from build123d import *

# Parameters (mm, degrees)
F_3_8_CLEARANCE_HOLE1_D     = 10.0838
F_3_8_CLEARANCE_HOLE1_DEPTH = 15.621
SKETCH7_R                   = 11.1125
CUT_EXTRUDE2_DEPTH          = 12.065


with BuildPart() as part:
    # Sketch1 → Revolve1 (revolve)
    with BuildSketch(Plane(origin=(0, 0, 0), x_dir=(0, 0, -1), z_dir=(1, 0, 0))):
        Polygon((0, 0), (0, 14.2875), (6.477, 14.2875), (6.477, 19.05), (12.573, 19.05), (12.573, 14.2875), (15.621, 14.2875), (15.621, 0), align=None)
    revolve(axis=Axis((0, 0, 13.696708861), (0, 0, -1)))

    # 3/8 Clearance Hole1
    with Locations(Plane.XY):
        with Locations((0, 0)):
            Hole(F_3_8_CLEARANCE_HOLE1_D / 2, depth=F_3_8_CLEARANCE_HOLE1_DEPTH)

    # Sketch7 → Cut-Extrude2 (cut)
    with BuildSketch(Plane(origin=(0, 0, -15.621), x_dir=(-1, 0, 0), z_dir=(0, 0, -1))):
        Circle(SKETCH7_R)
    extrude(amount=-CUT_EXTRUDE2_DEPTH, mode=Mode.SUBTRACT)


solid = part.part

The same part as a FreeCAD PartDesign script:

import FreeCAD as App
import Part
import Sketcher
from FreeCAD import Vector
Q = App.Units.Quantity


def add_polygon(sketch, points):
    """Adds a closed chain of lines whose ends are joined by coincident constraints."""
    first, n = sketch.GeometryCount, len(points)
    for a, b in zip(points, points[1:] + points[:1]):
        sketch.addGeometry(Part.LineSegment(App.Vector(*a, 0), App.Vector(*b, 0)), False)
    for i in range(n):
        sketch.addConstraint(Sketcher.Constraint("Coincident", first + i, 2, first + (i + 1) % n, 1))

doc = App.newDocument("Part")
body = doc.addObject("PartDesign::Body", "Body")

# Sketch on YZ plane
sketch1 = body.newObject("Sketcher::SketchObject", "Sketch")
sketch1.AttachmentSupport = (doc.getObject("YZ_Plane"), [""])
sketch1.MapMode = "FlatFace"
add_polygon(sketch1, [(14.2875, 0), (0, 0), (0, -15.621), (14.2875, -15.621), (14.2875, -12.573), (19.05, -12.573), (19.05, -6.477), (14.2875, -6.477)])  # lines 0-7
sketch1.addConstraint(Sketcher.Constraint("Horizontal", 0))
sketch1.addConstraint(Sketcher.Constraint("Vertical", 1))
sketch1.addConstraint(Sketcher.Constraint("Horizontal", 2))
sketch1.addConstraint(Sketcher.Constraint("Vertical", 3))
sketch1.addConstraint(Sketcher.Constraint("Horizontal", 4))
sketch1.addConstraint(Sketcher.Constraint("Vertical", 5))
sketch1.addConstraint(Sketcher.Constraint("Horizontal", 6))
sketch1.addConstraint(Sketcher.Constraint("Vertical", 7))
sketch1.addConstraint(Sketcher.Constraint("Coincident", 0, 2, -1, 1))
sketch1.addConstraint(Sketcher.Constraint("Vertical", 3, 2, 6, 2))
sketch1.addConstraint(Sketcher.Constraint("DistanceY", 3, 1, 3, 2, Q("0.12 in")))
sketch1.addConstraint(Sketcher.Constraint("DistanceY", 5, 1, 5, 2, Q("0.24 in")))
sketch1.addConstraint(Sketcher.Constraint("DistanceX", 0, 2, 0, 1, Q("0.5625 in")))
sketch1.addConstraint(Sketcher.Constraint("DistanceX", 4, 1, 4, 2, Q("0.1875 in")))
sketch1.addConstraint(Sketcher.Constraint("DistanceY", 1, 2, 1, 1, Q("0.615 in")))
revolution = body.newObject("PartDesign::Revolution", "Revolution")
revolution.Profile = sketch1
revolution.ReferenceAxis = (sketch1, ["V_Axis"])
revolution.Angle = 360

# Sketch on XY plane
sketch2 = body.newObject("Sketcher::SketchObject", "Sketch001")
sketch2.AttachmentSupport = (doc.getObject("XY_Plane"), [""])
sketch2.MapMode = "FlatFace"
sketch2.addGeometry(Part.Circle(Vector(0, 0, 0), Vector(0, 0, 1), 5.0419), False)
sketch2.addConstraint(Sketcher.Constraint("Coincident", 0, 3, -1, 1))
sketch2.addConstraint(Sketcher.Constraint("Diameter", 0, Q("0.397 in")))
doc.recompute()
hole = body.newObject("PartDesign::Hole", "Hole")
hole.Profile = sketch2
hole.ThreadType = "None"
hole.Diameter = Q("0.397 in")
hole.DepthType = "Dimension"
hole.Depth = Q("0.615 in")
hole.DrillPoint = "Flat"

# Sketch on XY plane
sketch3 = body.newObject("Sketcher::SketchObject", "Sketch002")
sketch3.AttachmentSupport = (doc.getObject("XY_Plane"), [""])
sketch3.MapMode = "FlatFace"
sketch3.AttachmentOffset = App.Placement(Vector(0, 0, -0.615 * 25.4), App.Rotation())
sketch3.addGeometry(Part.Circle(Vector(0, 0, 0), Vector(0, 0, 1), 11.1125), False)
sketch3.addConstraint(Sketcher.Constraint("Coincident", 0, 3, -1, 1))
sketch3.addConstraint(Sketcher.Constraint("Diameter", 0, Q("0.875 in")))
pocket1 = body.newObject("PartDesign::Pocket", "Pocket")
pocket1.Profile = sketch3
pocket1.Length = Q("0.475 in")
pocket1.Reversed = True

doc.recompute()
